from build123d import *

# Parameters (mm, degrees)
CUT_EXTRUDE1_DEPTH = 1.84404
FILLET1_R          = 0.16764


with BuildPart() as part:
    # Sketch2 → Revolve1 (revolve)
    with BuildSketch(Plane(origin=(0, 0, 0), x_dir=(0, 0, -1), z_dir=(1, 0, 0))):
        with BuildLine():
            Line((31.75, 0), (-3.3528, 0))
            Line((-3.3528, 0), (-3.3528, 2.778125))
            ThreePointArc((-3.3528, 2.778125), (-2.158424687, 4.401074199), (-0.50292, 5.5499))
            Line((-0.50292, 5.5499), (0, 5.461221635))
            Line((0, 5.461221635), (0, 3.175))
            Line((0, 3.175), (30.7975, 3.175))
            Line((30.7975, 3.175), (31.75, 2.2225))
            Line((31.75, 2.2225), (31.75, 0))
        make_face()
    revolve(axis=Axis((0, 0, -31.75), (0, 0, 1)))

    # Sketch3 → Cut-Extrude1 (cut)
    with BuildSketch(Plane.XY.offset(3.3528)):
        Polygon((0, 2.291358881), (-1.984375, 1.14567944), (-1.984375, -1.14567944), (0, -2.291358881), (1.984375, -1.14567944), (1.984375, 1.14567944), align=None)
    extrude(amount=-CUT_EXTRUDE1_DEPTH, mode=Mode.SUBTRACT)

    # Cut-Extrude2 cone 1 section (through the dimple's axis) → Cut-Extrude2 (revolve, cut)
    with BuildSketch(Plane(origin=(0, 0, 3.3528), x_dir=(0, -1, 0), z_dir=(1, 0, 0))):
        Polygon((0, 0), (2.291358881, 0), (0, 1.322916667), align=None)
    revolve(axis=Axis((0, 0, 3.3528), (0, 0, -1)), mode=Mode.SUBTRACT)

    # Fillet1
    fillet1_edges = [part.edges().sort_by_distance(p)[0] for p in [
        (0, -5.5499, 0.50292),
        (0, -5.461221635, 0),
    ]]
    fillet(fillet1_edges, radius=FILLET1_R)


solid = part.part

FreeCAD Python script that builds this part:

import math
import FreeCAD as App
import Part
import Sketcher

V = App.Vector
Q = App.Units.Quantity


def edges_at(feature, points):
    """Names of the edges that pass closest to the given points."""
    edges = feature.Shape.Edges
    near = lambda p: min(range(len(edges)), key=lambda i: edges[i].distToShape(Part.Vertex(*p))[0])
    return sorted({f"Edge{near(p) + 1}" for p in points})

doc = App.newDocument("Part")
body = doc.addObject("PartDesign::Body", "Body")

# Sketch on YZ plane
sketch1 = body.newObject("Sketcher::SketchObject", "Sketch")
sketch1.AttachmentSupport = (doc.getObject("YZ_Plane"), [""])
sketch1.MapMode = "FlatFace"
sketch1.addGeometry(Part.LineSegment(V(0, 3.3528, 0), V(0, -31.75, 0)), False)
sketch1.addGeometry(Part.LineSegment(V(0, -31.75, 0), V(2.2225, -31.75, 0)), False)
sketch1.addGeometry(Part.LineSegment(V(2.2225, -31.75, 0), V(3.175, -30.7975, 0)), False)
sketch1.addGeometry(Part.LineSegment(V(3.175, -30.7975, 0), V(3.175, 0, 0)), False)
sketch1.addGeometry(Part.LineSegment(V(3.175, 0, 0), V(5.461222, 0, 0)), False)
sketch1.addGeometry(Part.LineSegment(V(5.461222, 0, 0), V(5.5499, 0.50292, 0)), False)
sketch1.addGeometry(Part.ArcOfCircle(Part.Circle(V(0, -2.122032, 0), V(0, 0, 1), 6.139362), math.radians(25.312876), math.radians(63.095137)), False)
sketch1.addGeometry(Part.LineSegment(V(2.778125, 3.3528, 0), V(0, 3.3528, 0)), False)
sketch1.addConstraint(Sketcher.Constraint("Coincident", 0, 2, 1, 1))
sketch1.addConstraint(Sketcher.Constraint("Coincident", 1, 2, 2, 1))
sketch1.addConstraint(Sketcher.Constraint("Coincident", 2, 2, 3, 1))
sketch1.addConstraint(Sketcher.Constraint("Coincident", 3, 2, 4, 1))
sketch1.addConstraint(Sketcher.Constraint("Coincident", 4, 2, 5, 1))
sketch1.addConstraint(Sketcher.Constraint("Coincident", 5, 2, 6, 1))
sketch1.addConstraint(Sketcher.Constraint("Coincident", 6, 2, 7, 1))
sketch1.addConstraint(Sketcher.Constraint("Coincident", 7, 2, 0, 1))
sketch1.addConstraint(Sketcher.Constraint("Vertical", 0))
sketch1.addConstraint(Sketcher.Constraint("Horizontal", 1))
sketch1.addConstraint(Sketcher.Constraint("Vertical", 3))
sketch1.addConstraint(Sketcher.Constraint("Horizontal", 4))
sketch1.addConstraint(Sketcher.Constraint("Horizontal", 7))
sketch1.addConstraint(Sketcher.Constraint("PointOnObject", 6, 3, -2))
sketch1.addConstraint(Sketcher.Constraint("PointOnObject", 0, 2, -2))
sketch1.addConstraint(Sketcher.Constraint("PointOnObject", 3, 2, -1))
sketch1.addConstraint(Sketcher.Constraint("Angle", 2, Q("45 deg")))
sketch1.addConstraint(Sketcher.Constraint("Angle", 5, Q("80 deg")))
sketch1.addConstraint(Sketcher.Constraint("DistanceX", 7, 2, 7, 1, Q("0.109375 in")))
sketch1.addConstraint(Sketcher.Constraint("DistanceY", 0, 2, 0, 1, Q("1.382 in")))
sketch1.addConstraint(Sketcher.Constraint("DistanceY", 0, 2, -1, 1, Q("1.25 in")))
sketch1.addConstraint(Sketcher.Constraint("DistanceX", 1, 1, 1, 2, Q("0.0875 in")))
sketch1.addConstraint(Sketcher.Constraint("DistanceY", 3, 1, 3, 2, Q("1.2125 in")))
sketch1.addConstraint(Sketcher.Constraint("Radius", 6, 6.139362))
sketch1.addConstraint(Sketcher.Constraint("DistanceX", 1, 2, 5, 2, Q("0.131 in")))
revolution = body.newObject("PartDesign::Revolution", "Revolution")
revolution.Profile = sketch1
revolution.ReferenceAxis = (sketch1, ["V_Axis"])
revolution.Angle = 360

# Sketch on XY plane
sketch2 = body.newObject("Sketcher::SketchObject", "Sketch001")
sketch2.AttachmentSupport = (doc.getObject("XY_Plane"), [""])
sketch2.MapMode = "FlatFace"
sketch2.AttachmentOffset = App.Placement(V(0, 0, 0.132 * 25.4), App.Rotation())
sketch2.addGeometry(Part.LineSegment(V(0, 2.291359, 0), V(-1.984375, 1.145679, 0)), False)
sketch2.addGeometry(Part.LineSegment(V(-1.984375, 1.145679, 0), V(-1.984375, -1.145679, 0)), False)
sketch2.addGeometry(Part.LineSegment(V(-1.984375, -1.145679, 0), V(0, -2.291359, 0)), False)
sketch2.addGeometry(Part.LineSegment(V(0, -2.291359, 0), V(1.984375, -1.145679, 0)), False)
sketch2.addGeometry(Part.LineSegment(V(1.984375, -1.145679, 0), V(1.984375, 1.145679, 0)), False)
sketch2.addGeometry(Part.LineSegment(V(1.984375, 1.145679, 0), V(0, 2.291359, 0)), False)
sketch2.addConstraint(Sketcher.Constraint("Coincident", 0, 2, 1, 1))
sketch2.addConstraint(Sketcher.Constraint("Coincident", 1, 2, 2, 1))
sketch2.addConstraint(Sketcher.Constraint("Coincident", 2, 2, 3, 1))
sketch2.addConstraint(Sketcher.Constraint("Coincident", 3, 2, 4, 1))
sketch2.addConstraint(Sketcher.Constraint("Coincident", 4, 2, 5, 1))
sketch2.addConstraint(Sketcher.Constraint("Coincident", 5, 2, 0, 1))
sketch2.addConstraint(Sketcher.Constraint("Vertical", 1))
sketch2.addConstraint(Sketcher.Constraint("Vertical", 4))
sketch2.addConstraint(Sketcher.Constraint("Symmetric", 0, 2, 3, 2, -1, 1))
sketch2.addConstraint(Sketcher.Constraint("Symmetric", 2, 2, 5, 2, -1, 1))
sketch2.addConstraint(Sketcher.Constraint("PointOnObject", 2, 2, -2))
sketch2.addConstraint(Sketcher.Constraint("Parallel", 2, 5))
sketch2.addConstraint(Sketcher.Constraint("Horizontal", 1, 2, 3, 2))
sketch2.addConstraint(Sketcher.Constraint("Angle", 0, Q("-150 deg")))
sketch2.addConstraint(Sketcher.Constraint("DistanceX", 0, 2, -1, 1, Q("0.078125 in")))
sketch2.addConstraint(Sketcher.Constraint("DistanceY", 1, 2, 1, 1, 2.291359))
pocket1 = body.newObject("PartDesign::Pocket", "Pocket")
pocket1.Profile = sketch2
pocket1.Length = Q("0.0726 in")

# Sketch on YZ plane
sketch3 = body.newObject("Sketcher::SketchObject", "Sketch002")
sketch3.AttachmentSupport = (doc.getObject("YZ_Plane"), [""])
sketch3.MapMode = "FlatFace"
sketch3.addGeometry(Part.LineSegment(V(0, 3.3528, 0), V(-2.291359, 3.3528, 0)), False)
sketch3.addGeometry(Part.LineSegment(V(-2.291359, 3.3528, 0), V(0, 2.029883, 0)), False)
sketch3.addGeometry(Part.LineSegment(V(0, 2.029883, 0), V(0, 3.3528, 0)), False)
sketch3.addConstraint(Sketcher.Constraint("Coincident", 0, 2, 1, 1))
sketch3.addConstraint(Sketcher.Constraint("Coincident", 1, 2, 2, 1))
sketch3.addConstraint(Sketcher.Constraint("Coincident", 2, 2, 0, 1))
sketch3.addConstraint(Sketcher.Constraint("Horizontal", 0))
sketch3.addConstraint(Sketcher.Constraint("Vertical", 2))
sketch3.addConstraint(Sketcher.Constraint("PointOnObject", 1, 2, -2))
sketch3.addConstraint(Sketcher.Constraint("Angle", 1, Q("-30 deg")))
sketch3.addConstraint(Sketcher.Constraint("DistanceY", -1, 1, 0, 2, Q("0.132 in")))
sketch3.addConstraint(Sketcher.Constraint("DistanceX", 0, 2, 0, 1, 2.291359))
groove = body.newObject("PartDesign::Groove", "Groove")
groove.Profile = sketch3
groove.ReferenceAxis = (sketch3, ["V_Axis"])
groove.Angle = 360
doc.recompute()

fillet = body.newObject("PartDesign::Fillet", "Fillet")
fillet.Base = (groove, edges_at(groove, [(0, -5.55, 0.503), (0, -5.461, 0)]))
fillet.Radius = Q("0.0066 in")

doc.recompute()
